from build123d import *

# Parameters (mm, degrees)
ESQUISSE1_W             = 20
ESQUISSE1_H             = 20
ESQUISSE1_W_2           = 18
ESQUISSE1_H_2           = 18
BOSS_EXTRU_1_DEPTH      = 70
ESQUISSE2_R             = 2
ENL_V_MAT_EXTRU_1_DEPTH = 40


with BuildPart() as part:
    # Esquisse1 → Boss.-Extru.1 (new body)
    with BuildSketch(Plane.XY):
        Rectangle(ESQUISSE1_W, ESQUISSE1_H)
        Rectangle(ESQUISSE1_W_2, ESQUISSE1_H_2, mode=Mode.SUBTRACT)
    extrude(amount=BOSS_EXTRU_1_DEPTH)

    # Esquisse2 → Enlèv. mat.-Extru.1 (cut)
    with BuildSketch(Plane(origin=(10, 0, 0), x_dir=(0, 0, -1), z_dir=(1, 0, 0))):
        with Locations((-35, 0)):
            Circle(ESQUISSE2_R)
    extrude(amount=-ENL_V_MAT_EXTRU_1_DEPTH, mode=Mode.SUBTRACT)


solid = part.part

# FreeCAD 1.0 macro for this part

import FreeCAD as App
import Part
import Sketcher
Q = App.Units.Quantity


def add_polygon(sketch, points):
    """Adds a closed chain of lines whose ends are joined by coincident constraints."""
    first, n = sketch.GeometryCount, len(points)
    for a, b in zip(points, points[1:] + points[:1]):
        sketch.addGeometry(Part.LineSegment(App.Vector(*a, 0), App.Vector(*b, 0)), False)
    for i in range(n):
        sketch.addConstraint(Sketcher.Constraint("Coincident", first + i, 2, first + (i + 1) % n, 1))

doc = App.newDocument("Part")
body = doc.addObject("PartDesign::Body", "Body")

# Sketch on XY plane
sketch1 = body.newObject("Sketcher::SketchObject", "Sketch")
sketch1.AttachmentSupport = (doc.getObject("XY_Plane"), [""])
sketch1.MapMode = "FlatFace"
add_polygon(sketch1, [(-10, 10), (-10, -10), (10, -10), (10, 10)])  # lines 0-3
add_polygon(sketch1, [(9, -9), (-9, -9), (-9, 9), (9, 9)])  # lines 4-7
sketch1.addConstraint([
    Sketcher.Constraint("Vertical", 0),
    Sketcher.Constraint("Horizontal", 1),
    Sketcher.Constraint("Vertical", 2),
    Sketcher.Constraint("Horizontal", 3),
    Sketcher.Constraint("Horizontal", 4),
    Sketcher.Constraint("Vertical", 5),
    Sketcher.Constraint("Horizontal", 6),
    Sketcher.Constraint("Vertical", 7),
    Sketcher.Constraint("Symmetric", 0, 2, 2, 2, -1, 1),
    Sketcher.Constraint("Symmetric", 4, 2, 6, 2, -1, 1),
    Sketcher.Constraint("Equal", 3, 0),
    Sketcher.Constraint("Equal", 6, 5),
    Sketcher.Constraint("DistanceX", 1, 1, 1, 2, Q("20 mm")),
    Sketcher.Constraint("DistanceX", 4, 2, 4, 1, Q("18 mm")),
])
pad1 = body.newObject("PartDesign::Pad", "Pad")
pad1.Profile = sketch1
pad1.Length = 70

# Sketch on YZ plane
sketch2 = body.newObject("Sketcher::SketchObject", "Sketch001")
sketch2.AttachmentSupport = (doc.getObject("YZ_Plane"), [""])
sketch2.MapMode = "FlatFace"
sketch2.AttachmentOffset = App.Placement(App.Vector(0, 0, 10), App.Rotation())
sketch2.addGeometry(Part.Circle(App.Vector(0, 35, 0), App.Vector(0, 0, 1), 2), False)
sketch2.addConstraint([
    Sketcher.Constraint("PointOnObject", 0, 3, -2),
    Sketcher.Constraint("Diameter", 0, Q("4 mm")),
    Sketcher.Constraint("DistanceY", -1, 1, 0, 3, Q("35 mm")),
])
pocket1 = body.newObject("PartDesign::Pocket", "Pocket")
pocket1.Profile = sketch2
pocket1.Length = 40

doc.recompute()
